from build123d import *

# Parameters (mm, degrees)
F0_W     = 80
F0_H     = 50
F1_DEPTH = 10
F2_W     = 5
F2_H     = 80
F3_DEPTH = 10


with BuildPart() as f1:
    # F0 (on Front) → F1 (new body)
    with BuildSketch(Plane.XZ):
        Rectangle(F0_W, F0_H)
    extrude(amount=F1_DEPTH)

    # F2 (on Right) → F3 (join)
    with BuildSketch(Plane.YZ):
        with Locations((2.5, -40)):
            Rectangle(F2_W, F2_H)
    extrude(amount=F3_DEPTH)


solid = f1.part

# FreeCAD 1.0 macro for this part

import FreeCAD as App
import Part
import Sketcher
from FreeCAD import Vector


def add_polygon(sketch, points):
    """Adds a closed chain of lines whose ends are joined by coincident constraints."""
    first, n = sketch.GeometryCount, len(points)
    for a, b in zip(points, points[1:] + points[:1]):
        sketch.addGeometry(Part.LineSegment(App.Vector(*a, 0), App.Vector(*b, 0)), False)
    for i in range(n):
        sketch.addConstraint(Sketcher.Constraint("Coincident", first + i, 2, first + (i + 1) % n, 1))

doc = App.newDocument("Part")
body = doc.addObject("PartDesign::Body", "Body")

# Sketch on XZ plane
sketch1 = body.newObject("Sketcher::SketchObject", "Sketch")
sketch1.AttachmentSupport = (doc.getObject("XZ_Plane"), [""])
sketch1.MapMode = "FlatFace"
add_polygon(sketch1, [(-40, 25), (-40, -25), (40, -25), (40, 25)])  # lines 0-3
sketch1.addConstraint(Sketcher.Constraint("Vertical", 0))
sketch1.addConstraint(Sketcher.Constraint("Horizontal", 1))
sketch1.addConstraint(Sketcher.Constraint("Vertical", 2))
sketch1.addConstraint(Sketcher.Constraint("Horizontal", 3))
sketch1.addConstraint(Sketcher.Constraint("Symmetric", 0, 2, 2, 2, -1, 1))
sketch1.addConstraint(Sketcher.Constraint("DistanceX", 1, 1, 1, 2, 80.0))
sketch1.addConstraint(Sketcher.Constraint("DistanceY", 0, 2, 0, 1, 50.0))
pad1 = body.newObject("PartDesign::Pad", "Pad")
pad1.Profile = sketch1
pad1.Length = 10

# Sketch on YZ plane
sketch2 = body.newObject("Sketcher::SketchObject", "Sketch001")
sketch2.AttachmentSupport = (doc.getObject("YZ_Plane"), [""])
sketch2.MapMode = "FlatFace"
add_polygon(sketch2, [(0, 0), (0, -80), (5, -80), (5, 0)])  # lines 0-3
sketch2.addConstraint(Sketcher.Constraint("Vertical", 0))
sketch2.addConstraint(Sketcher.Constraint("Horizontal", 1))
sketch2.addConstraint(Sketcher.Constraint("Vertical", 2))
sketch2.addConstraint(Sketcher.Constraint("Horizontal", 3))
sketch2.addConstraint(Sketcher.Constraint("Coincident", 3, 2, -1, 1))
sketch2.addConstraint(Sketcher.Constraint("DistanceX", 1, 1, 1, 2, 5.0))
sketch2.addConstraint(Sketcher.Constraint("DistanceY", 0, 2, 0, 1, 80.0))
pad2 = body.newObject("PartDesign::Pad", "Pad001")
pad2.Profile = sketch2
pad2.Length = 10

doc.recompute()
